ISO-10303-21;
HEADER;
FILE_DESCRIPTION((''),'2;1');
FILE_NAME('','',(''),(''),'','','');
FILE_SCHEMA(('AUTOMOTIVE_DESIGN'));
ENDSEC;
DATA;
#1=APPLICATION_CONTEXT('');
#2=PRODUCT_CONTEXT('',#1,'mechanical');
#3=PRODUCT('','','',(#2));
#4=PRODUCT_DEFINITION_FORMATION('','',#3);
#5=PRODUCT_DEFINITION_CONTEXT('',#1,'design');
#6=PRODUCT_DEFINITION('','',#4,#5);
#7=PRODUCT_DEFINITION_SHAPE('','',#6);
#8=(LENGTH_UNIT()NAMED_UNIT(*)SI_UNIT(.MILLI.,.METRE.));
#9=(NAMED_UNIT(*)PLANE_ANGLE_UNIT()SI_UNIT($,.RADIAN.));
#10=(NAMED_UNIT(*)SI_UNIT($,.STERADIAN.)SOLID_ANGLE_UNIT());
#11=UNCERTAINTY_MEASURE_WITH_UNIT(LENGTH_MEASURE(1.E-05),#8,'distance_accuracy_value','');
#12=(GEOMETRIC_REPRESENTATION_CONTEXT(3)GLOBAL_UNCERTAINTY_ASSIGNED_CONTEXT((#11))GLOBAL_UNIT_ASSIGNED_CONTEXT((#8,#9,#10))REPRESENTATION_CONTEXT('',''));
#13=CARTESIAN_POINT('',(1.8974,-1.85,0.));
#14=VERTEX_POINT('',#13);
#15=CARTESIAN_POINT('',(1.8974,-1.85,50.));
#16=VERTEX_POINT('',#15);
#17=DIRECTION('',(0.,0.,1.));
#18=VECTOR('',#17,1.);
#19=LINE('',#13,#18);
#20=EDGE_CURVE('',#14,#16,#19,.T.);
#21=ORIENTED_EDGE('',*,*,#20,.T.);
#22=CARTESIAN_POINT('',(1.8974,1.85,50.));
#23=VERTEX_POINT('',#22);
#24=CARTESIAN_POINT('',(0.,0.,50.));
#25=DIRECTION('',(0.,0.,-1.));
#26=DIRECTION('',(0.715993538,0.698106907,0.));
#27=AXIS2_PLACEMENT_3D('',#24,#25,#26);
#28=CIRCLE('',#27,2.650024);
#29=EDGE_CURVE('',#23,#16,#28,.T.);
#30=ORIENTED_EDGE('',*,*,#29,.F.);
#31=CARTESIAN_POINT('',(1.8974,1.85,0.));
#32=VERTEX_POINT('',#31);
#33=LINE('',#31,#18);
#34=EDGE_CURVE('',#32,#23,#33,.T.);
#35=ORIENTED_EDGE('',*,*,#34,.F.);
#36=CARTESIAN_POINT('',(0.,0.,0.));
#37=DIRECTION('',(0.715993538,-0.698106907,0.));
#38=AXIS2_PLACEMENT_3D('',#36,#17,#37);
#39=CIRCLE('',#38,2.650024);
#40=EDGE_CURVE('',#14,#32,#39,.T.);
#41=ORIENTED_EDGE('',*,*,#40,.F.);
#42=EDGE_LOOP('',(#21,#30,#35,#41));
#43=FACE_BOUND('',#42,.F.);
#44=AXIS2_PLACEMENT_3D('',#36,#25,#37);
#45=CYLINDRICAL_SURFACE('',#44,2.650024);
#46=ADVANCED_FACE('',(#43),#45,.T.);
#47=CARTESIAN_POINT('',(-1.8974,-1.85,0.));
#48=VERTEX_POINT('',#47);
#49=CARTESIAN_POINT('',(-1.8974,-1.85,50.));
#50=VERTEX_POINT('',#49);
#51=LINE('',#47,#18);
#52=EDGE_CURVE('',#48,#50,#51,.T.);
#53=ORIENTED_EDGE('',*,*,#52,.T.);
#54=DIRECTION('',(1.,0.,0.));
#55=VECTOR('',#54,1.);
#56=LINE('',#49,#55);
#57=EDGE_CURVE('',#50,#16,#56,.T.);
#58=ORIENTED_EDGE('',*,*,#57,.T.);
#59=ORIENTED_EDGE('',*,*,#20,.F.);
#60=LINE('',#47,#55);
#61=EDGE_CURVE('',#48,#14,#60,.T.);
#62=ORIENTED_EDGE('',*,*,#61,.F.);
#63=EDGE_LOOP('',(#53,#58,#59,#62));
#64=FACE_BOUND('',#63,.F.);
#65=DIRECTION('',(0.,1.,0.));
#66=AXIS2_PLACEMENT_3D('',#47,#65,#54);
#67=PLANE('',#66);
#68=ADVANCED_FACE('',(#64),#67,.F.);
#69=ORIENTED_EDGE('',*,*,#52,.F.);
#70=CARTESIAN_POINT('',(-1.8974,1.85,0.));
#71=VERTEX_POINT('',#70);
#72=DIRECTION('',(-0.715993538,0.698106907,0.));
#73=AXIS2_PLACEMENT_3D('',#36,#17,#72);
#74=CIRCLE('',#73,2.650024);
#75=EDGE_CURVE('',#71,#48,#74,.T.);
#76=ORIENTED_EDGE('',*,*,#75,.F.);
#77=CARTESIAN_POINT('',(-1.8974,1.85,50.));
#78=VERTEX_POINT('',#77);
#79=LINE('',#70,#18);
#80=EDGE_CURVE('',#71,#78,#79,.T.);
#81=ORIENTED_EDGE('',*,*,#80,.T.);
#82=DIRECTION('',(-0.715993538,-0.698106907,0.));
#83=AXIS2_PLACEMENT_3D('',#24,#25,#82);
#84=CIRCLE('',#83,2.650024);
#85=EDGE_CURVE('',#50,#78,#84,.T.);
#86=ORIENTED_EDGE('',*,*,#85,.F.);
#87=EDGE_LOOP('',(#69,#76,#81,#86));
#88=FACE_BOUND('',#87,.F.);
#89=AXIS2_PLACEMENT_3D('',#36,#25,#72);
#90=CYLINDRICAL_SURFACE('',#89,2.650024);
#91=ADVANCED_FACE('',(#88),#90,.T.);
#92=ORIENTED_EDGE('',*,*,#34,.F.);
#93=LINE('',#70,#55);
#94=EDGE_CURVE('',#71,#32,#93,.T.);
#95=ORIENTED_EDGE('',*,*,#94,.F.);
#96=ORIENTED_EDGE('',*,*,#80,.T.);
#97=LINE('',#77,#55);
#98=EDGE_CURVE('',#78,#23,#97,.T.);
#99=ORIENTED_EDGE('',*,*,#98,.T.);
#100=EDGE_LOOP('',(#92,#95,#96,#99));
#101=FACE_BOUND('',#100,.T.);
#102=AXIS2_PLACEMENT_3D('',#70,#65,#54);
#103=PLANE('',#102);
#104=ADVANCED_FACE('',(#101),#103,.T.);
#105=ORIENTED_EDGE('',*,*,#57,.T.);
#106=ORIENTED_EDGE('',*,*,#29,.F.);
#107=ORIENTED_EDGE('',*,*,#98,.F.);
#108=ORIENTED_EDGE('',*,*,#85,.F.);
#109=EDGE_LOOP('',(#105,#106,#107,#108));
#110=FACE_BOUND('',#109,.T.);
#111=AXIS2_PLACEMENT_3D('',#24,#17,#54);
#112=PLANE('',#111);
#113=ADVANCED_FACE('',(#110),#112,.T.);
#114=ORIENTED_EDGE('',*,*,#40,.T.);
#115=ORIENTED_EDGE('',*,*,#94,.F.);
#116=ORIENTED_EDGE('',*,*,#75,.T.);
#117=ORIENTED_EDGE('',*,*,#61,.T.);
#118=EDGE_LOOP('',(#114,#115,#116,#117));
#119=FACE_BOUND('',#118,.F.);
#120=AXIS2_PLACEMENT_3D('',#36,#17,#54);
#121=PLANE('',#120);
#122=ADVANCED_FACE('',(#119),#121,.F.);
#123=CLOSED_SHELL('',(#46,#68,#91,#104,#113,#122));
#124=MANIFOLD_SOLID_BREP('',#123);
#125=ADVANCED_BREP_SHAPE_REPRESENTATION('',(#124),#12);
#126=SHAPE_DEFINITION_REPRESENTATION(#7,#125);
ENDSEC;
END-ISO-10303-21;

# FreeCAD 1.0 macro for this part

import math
import FreeCAD as App
import Part
import Sketcher
Q = App.Units.Quantity

doc = App.newDocument("Part")
body = doc.addObject("PartDesign::Body", "Body")

sketch1 = body.newObject("Sketcher::SketchObject", "Sketch")
sketch1.AttachmentSupport = (doc.getObject("XY_Plane"), [""])
sketch1.MapMode = "FlatFace"
sketch1.addGeometry([
    Part.LineSegment(App.Vector(1.8974, 1.85, 0), App.Vector(-1.8974, 1.85, 0)),
    Part.ArcOfCircle(Part.Circle(App.Vector(0, 0, 0), App.Vector(0, 0, 1), 2.650024), math.radians(135.724682), math.radians(224.275318)),
    Part.LineSegment(App.Vector(-1.8974, -1.85, 0), App.Vector(1.8974, -1.85, 0)),
    Part.ArcOfCircle(Part.Circle(App.Vector(0, 0, 0), App.Vector(0, 0, 1), 2.650024), math.radians(-44.275318), math.radians(44.275318)),
], False)
sketch1.addConstraint([
    Sketcher.Constraint("Coincident", 0, 2, 1, 1),
    Sketcher.Constraint("Coincident", 1, 2, 2, 1),
    Sketcher.Constraint("Coincident", 2, 2, 3, 1),
    Sketcher.Constraint("Coincident", 3, 2, 0, 1),
    Sketcher.Constraint("Horizontal", 0),
    Sketcher.Constraint("Horizontal", 2),
    Sketcher.Constraint("Coincident", 1, 3, -1, 1),
    Sketcher.Constraint("Coincident", 3, 3, -1, 1),
    Sketcher.Constraint("Equal", 1, 3),
    Sketcher.Constraint("Vertical", 0, 2, 1, 2),
    Sketcher.Constraint("Radius", 1, Q("2.65 mm")),
    Sketcher.Constraint("DistanceY", 1, 2, 0, 2, Q("3.7 mm")),
])
pad1 = body.newObject("PartDesign::Pad", "Pad")
pad1.Profile = sketch1
pad1.Length = 50

doc.recompute()
